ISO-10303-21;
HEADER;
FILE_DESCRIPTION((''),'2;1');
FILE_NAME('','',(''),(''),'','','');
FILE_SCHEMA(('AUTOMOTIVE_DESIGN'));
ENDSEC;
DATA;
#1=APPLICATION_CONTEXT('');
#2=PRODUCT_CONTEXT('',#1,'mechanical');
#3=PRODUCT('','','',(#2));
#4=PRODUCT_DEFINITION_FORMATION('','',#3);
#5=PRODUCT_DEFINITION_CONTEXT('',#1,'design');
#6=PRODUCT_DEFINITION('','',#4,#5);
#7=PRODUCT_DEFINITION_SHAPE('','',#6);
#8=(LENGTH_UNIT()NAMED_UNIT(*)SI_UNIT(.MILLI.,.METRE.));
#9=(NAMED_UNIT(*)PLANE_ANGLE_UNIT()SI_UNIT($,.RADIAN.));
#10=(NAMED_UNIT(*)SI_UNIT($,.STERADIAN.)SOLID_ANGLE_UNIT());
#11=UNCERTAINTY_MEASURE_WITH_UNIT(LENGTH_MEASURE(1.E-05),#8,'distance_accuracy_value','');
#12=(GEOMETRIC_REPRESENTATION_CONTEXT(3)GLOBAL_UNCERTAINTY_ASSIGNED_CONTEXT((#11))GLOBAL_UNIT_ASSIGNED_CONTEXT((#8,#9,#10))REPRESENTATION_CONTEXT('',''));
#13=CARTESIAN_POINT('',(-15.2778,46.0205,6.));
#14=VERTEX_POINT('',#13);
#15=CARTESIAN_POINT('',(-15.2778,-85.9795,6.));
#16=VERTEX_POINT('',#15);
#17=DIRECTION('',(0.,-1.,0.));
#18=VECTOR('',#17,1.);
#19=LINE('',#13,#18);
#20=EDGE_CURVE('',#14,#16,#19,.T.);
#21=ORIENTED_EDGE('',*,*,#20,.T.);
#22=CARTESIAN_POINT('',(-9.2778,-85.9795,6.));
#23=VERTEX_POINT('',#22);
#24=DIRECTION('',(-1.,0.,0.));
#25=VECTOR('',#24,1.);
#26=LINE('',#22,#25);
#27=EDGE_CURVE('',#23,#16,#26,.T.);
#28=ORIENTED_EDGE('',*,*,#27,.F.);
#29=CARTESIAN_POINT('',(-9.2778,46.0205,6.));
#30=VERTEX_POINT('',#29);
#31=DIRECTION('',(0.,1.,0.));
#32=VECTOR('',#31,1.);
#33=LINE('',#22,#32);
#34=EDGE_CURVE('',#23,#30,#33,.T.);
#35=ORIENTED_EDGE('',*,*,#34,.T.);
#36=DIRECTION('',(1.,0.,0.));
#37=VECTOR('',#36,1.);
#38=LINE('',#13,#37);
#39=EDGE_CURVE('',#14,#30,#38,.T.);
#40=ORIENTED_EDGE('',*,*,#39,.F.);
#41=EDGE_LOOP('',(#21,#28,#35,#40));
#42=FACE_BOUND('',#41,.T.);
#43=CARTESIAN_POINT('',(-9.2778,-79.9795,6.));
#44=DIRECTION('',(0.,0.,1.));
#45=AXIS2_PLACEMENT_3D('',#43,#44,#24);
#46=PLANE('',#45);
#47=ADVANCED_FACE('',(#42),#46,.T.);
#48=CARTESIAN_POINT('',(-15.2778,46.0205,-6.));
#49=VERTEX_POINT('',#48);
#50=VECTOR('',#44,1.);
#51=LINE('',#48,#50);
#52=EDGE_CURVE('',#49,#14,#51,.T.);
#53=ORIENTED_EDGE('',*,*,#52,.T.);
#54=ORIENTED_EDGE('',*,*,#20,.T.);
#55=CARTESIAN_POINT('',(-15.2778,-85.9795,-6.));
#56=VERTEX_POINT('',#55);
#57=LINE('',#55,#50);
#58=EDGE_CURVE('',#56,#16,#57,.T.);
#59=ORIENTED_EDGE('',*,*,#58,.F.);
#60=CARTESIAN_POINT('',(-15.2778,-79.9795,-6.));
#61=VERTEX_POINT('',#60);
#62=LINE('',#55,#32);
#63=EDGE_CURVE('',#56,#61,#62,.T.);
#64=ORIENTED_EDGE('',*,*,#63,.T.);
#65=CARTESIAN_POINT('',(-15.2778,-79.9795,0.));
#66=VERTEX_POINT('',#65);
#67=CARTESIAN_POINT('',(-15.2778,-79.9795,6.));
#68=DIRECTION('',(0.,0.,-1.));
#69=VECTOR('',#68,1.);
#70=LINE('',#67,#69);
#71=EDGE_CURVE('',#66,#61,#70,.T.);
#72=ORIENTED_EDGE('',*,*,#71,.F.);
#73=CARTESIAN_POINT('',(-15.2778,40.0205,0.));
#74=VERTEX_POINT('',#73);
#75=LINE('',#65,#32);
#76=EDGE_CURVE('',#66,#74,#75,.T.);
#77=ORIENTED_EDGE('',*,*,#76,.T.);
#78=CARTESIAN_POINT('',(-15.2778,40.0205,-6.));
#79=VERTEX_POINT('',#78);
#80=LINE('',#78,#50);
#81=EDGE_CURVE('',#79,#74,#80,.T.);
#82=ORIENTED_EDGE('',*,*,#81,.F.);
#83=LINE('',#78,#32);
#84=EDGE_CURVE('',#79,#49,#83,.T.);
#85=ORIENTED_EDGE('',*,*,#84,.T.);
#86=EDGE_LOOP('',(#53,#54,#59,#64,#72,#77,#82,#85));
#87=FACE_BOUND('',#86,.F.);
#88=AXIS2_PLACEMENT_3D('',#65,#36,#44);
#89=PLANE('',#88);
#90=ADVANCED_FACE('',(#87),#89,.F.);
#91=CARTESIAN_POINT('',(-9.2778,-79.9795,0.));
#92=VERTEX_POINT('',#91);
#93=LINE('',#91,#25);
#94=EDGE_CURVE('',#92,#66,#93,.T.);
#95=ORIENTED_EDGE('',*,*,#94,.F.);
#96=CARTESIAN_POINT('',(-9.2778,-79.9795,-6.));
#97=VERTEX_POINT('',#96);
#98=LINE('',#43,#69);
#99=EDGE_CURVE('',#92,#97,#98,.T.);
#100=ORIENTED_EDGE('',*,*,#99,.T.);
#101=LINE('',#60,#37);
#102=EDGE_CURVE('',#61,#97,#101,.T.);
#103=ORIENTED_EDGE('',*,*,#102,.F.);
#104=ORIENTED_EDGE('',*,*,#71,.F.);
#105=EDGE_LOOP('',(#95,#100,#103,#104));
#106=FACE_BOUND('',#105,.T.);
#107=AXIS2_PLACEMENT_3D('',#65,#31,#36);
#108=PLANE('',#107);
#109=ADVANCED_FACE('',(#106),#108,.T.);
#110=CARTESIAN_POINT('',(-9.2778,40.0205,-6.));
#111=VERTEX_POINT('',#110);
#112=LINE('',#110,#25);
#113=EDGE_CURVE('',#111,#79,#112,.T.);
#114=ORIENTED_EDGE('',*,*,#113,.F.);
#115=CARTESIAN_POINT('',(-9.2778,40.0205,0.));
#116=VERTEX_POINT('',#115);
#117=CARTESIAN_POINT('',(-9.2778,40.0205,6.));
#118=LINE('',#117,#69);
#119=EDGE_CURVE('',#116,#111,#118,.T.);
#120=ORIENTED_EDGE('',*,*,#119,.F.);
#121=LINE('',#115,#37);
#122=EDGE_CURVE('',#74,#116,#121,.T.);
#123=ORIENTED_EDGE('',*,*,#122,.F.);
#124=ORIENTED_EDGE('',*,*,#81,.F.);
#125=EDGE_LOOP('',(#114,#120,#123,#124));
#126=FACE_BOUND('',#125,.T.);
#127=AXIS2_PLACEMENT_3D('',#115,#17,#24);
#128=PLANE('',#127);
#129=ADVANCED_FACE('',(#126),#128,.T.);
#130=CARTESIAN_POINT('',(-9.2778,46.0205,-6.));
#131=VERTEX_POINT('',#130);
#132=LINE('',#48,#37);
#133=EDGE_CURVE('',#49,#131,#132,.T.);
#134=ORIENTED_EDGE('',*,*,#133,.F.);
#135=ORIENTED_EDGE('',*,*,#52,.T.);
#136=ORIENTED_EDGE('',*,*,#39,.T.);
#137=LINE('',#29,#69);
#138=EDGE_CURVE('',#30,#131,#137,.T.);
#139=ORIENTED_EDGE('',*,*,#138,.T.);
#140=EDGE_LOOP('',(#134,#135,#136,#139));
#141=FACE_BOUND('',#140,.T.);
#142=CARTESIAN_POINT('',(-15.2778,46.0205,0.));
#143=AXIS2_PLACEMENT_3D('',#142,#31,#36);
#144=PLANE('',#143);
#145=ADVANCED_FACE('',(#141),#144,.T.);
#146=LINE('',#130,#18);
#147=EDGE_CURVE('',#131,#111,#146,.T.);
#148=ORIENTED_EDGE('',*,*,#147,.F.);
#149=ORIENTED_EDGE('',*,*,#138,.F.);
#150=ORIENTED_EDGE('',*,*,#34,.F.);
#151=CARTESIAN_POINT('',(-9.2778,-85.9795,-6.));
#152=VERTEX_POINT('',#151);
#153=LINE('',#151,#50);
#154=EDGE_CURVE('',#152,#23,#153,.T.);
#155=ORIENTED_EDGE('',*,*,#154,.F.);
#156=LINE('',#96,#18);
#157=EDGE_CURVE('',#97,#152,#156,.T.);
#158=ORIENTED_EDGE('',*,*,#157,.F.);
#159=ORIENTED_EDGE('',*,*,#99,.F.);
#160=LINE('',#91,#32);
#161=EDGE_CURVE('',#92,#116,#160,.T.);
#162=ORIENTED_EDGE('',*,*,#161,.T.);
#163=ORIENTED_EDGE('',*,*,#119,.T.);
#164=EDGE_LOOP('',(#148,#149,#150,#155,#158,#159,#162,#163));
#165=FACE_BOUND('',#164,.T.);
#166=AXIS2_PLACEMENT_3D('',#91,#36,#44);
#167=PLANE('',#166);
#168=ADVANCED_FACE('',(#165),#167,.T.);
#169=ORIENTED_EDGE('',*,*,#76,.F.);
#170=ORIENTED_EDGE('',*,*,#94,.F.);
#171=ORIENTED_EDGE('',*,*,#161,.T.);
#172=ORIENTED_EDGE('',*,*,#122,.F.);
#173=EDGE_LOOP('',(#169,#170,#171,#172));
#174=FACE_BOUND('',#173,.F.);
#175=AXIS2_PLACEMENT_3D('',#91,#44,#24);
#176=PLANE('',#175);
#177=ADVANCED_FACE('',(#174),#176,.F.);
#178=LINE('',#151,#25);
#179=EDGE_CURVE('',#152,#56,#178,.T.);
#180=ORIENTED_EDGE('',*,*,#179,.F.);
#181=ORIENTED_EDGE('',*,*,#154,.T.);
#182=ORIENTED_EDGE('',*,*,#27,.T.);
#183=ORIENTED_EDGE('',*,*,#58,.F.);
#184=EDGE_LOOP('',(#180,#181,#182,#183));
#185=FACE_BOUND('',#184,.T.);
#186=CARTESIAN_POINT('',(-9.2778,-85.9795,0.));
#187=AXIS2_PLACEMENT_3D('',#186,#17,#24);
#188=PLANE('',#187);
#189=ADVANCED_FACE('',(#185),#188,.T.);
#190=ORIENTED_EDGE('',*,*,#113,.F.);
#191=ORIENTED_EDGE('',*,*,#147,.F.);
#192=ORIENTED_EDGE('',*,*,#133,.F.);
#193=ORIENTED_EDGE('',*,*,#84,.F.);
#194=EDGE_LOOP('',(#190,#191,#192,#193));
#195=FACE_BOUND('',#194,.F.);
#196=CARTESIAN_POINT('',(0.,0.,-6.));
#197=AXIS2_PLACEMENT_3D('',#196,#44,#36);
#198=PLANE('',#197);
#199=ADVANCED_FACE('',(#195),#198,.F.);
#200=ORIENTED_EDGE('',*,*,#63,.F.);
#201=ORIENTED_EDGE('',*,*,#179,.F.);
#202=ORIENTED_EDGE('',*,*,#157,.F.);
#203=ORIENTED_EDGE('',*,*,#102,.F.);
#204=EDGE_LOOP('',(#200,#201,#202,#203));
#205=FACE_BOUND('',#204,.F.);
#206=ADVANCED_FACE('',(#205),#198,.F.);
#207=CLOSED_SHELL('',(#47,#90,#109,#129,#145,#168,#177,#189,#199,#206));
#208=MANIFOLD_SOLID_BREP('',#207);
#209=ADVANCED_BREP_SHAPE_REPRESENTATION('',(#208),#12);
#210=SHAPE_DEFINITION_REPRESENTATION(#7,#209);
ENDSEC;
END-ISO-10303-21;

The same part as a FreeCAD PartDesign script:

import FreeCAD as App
import Part
import Sketcher

V = App.Vector

doc = App.newDocument("Part")
body = doc.addObject("PartDesign::Body", "Body")
body.AllowCompound = True

# Sketch on XY plane
sketch1 = body.newObject("Sketcher::SketchObject", "Sketch")
sketch1.AttachmentSupport = (doc.getObject("XY_Plane"), [""])
sketch1.MapMode = "FlatFace"
sketch1.addGeometry(Part.LineSegment(V(-9.2778, 46.0205, 0), V(-15.2778, 46.0205, 0)), False)
sketch1.addGeometry(Part.LineSegment(V(-15.2778, 46.0205, 0), V(-15.2778, 40.0205, 0)), False)
sketch1.addGeometry(Part.LineSegment(V(-15.2778, 40.0205, 0), V(-9.2778, 40.0205, 0)), False)
sketch1.addGeometry(Part.LineSegment(V(-9.2778, 40.0205, 0), V(-9.2778, 46.0205, 0)), False)
sketch1.addGeometry(Part.LineSegment(V(-15.2778, -79.9795, 0), V(-15.2778, -85.9795, 0)), False)
sketch1.addGeometry(Part.LineSegment(V(-15.2778, -85.9795, 0), V(-9.2778, -85.9795, 0)), False)
sketch1.addGeometry(Part.LineSegment(V(-9.2778, -85.9795, 0), V(-9.2778, -79.9795, 0)), False)
sketch1.addGeometry(Part.LineSegment(V(-9.2778, -79.9795, 0), V(-15.2778, -79.9795, 0)), False)
sketch1.addConstraint(Sketcher.Constraint("Coincident", 0, 2, 1, 1))
sketch1.addConstraint(Sketcher.Constraint("Coincident", 1, 2, 2, 1))
sketch1.addConstraint(Sketcher.Constraint("Coincident", 2, 2, 3, 1))
sketch1.addConstraint(Sketcher.Constraint("Coincident", 3, 2, 0, 1))
sketch1.addConstraint(Sketcher.Constraint("Coincident", 4, 2, 5, 1))
sketch1.addConstraint(Sketcher.Constraint("Coincident", 5, 2, 6, 1))
sketch1.addConstraint(Sketcher.Constraint("Coincident", 6, 2, 7, 1))
sketch1.addConstraint(Sketcher.Constraint("Coincident", 7, 2, 4, 1))
sketch1.addConstraint(Sketcher.Constraint("Horizontal", 0))
sketch1.addConstraint(Sketcher.Constraint("Vertical", 1))
sketch1.addConstraint(Sketcher.Constraint("Horizontal", 2))
sketch1.addConstraint(Sketcher.Constraint("Vertical", 3))
sketch1.addConstraint(Sketcher.Constraint("Vertical", 4))
sketch1.addConstraint(Sketcher.Constraint("Horizontal", 5))
sketch1.addConstraint(Sketcher.Constraint("Vertical", 6))
sketch1.addConstraint(Sketcher.Constraint("Horizontal", 7))
sketch1.addConstraint(Sketcher.Constraint("Vertical", 1, 2, 4, 2))
sketch1.addConstraint(Sketcher.Constraint("Vertical", 3, 2, 5, 2))
sketch1.addConstraint(Sketcher.Constraint("Equal", 7, 1))
sketch1.addConstraint(Sketcher.Constraint("Equal", 3, 4))
sketch1.addConstraint(Sketcher.Constraint("DistanceX", 0, 2, 0, 1, 6.0))
sketch1.addConstraint(Sketcher.Constraint("DistanceY", 4, 2, 1, 2, 126.0))
sketch1.addConstraint(Sketcher.Constraint("DistanceX", 0, 2, -1, 1, 15.2778))
sketch1.addConstraint(Sketcher.Constraint("DistanceY", -1, 1, 0, 2, 46.0205))
pad1 = body.newObject("PartDesign::Pad", "Pad")
pad1.Profile = sketch1
pad1.Type = "TwoLengths"
pad1.Length = 6
pad1.Length2 = 6

# Sketch on XZ plane
sketch2 = body.newObject("Sketcher::SketchObject", "Sketch001")
sketch2.AttachmentSupport = (doc.getObject("XZ_Plane"), [""])
sketch2.MapMode = "FlatFace"
sketch2.AttachmentOffset = App.Placement(V(0, 0, 79.9795), App.Rotation())
sketch2.addGeometry(Part.LineSegment(V(-15.2778, 6, 0), V(-9.2778, 6, 0)), False)
sketch2.addGeometry(Part.LineSegment(V(-9.2778, 6, 0), V(-9.2778, 0, 0)), False)
sketch2.addGeometry(Part.LineSegment(V(-9.2778, 0, 0), V(-15.2778, 0, 0)), False)
sketch2.addGeometry(Part.LineSegment(V(-15.2778, 0, 0), V(-15.2778, 6, 0)), False)
sketch2.addConstraint(Sketcher.Constraint("Coincident", 0, 2, 1, 1))
sketch2.addConstraint(Sketcher.Constraint("Coincident", 1, 2, 2, 1))
sketch2.addConstraint(Sketcher.Constraint("Coincident", 2, 2, 3, 1))
sketch2.addConstraint(Sketcher.Constraint("Coincident", 3, 2, 0, 1))
sketch2.addConstraint(Sketcher.Constraint("Horizontal", 0))
sketch2.addConstraint(Sketcher.Constraint("Vertical", 1))
sketch2.addConstraint(Sketcher.Constraint("Horizontal", 2))
sketch2.addConstraint(Sketcher.Constraint("Vertical", 3))
sketch2.addConstraint(Sketcher.Constraint("PointOnObject", 1, 2, -1))
sketch2.addConstraint(Sketcher.Constraint("Equal", 2, 1))
sketch2.addConstraint(Sketcher.Constraint("DistanceX", 0, 1, 0, 2, 6.0))
sketch2.addConstraint(Sketcher.Constraint("DistanceX", 0, 2, -1, 1, 9.2778))
pad2 = body.newObject("PartDesign::Pad", "Pad001")
pad2.Profile = sketch2
pad2.Type = "UpToFirst"
pad2.Reversed = True

doc.recompute()
